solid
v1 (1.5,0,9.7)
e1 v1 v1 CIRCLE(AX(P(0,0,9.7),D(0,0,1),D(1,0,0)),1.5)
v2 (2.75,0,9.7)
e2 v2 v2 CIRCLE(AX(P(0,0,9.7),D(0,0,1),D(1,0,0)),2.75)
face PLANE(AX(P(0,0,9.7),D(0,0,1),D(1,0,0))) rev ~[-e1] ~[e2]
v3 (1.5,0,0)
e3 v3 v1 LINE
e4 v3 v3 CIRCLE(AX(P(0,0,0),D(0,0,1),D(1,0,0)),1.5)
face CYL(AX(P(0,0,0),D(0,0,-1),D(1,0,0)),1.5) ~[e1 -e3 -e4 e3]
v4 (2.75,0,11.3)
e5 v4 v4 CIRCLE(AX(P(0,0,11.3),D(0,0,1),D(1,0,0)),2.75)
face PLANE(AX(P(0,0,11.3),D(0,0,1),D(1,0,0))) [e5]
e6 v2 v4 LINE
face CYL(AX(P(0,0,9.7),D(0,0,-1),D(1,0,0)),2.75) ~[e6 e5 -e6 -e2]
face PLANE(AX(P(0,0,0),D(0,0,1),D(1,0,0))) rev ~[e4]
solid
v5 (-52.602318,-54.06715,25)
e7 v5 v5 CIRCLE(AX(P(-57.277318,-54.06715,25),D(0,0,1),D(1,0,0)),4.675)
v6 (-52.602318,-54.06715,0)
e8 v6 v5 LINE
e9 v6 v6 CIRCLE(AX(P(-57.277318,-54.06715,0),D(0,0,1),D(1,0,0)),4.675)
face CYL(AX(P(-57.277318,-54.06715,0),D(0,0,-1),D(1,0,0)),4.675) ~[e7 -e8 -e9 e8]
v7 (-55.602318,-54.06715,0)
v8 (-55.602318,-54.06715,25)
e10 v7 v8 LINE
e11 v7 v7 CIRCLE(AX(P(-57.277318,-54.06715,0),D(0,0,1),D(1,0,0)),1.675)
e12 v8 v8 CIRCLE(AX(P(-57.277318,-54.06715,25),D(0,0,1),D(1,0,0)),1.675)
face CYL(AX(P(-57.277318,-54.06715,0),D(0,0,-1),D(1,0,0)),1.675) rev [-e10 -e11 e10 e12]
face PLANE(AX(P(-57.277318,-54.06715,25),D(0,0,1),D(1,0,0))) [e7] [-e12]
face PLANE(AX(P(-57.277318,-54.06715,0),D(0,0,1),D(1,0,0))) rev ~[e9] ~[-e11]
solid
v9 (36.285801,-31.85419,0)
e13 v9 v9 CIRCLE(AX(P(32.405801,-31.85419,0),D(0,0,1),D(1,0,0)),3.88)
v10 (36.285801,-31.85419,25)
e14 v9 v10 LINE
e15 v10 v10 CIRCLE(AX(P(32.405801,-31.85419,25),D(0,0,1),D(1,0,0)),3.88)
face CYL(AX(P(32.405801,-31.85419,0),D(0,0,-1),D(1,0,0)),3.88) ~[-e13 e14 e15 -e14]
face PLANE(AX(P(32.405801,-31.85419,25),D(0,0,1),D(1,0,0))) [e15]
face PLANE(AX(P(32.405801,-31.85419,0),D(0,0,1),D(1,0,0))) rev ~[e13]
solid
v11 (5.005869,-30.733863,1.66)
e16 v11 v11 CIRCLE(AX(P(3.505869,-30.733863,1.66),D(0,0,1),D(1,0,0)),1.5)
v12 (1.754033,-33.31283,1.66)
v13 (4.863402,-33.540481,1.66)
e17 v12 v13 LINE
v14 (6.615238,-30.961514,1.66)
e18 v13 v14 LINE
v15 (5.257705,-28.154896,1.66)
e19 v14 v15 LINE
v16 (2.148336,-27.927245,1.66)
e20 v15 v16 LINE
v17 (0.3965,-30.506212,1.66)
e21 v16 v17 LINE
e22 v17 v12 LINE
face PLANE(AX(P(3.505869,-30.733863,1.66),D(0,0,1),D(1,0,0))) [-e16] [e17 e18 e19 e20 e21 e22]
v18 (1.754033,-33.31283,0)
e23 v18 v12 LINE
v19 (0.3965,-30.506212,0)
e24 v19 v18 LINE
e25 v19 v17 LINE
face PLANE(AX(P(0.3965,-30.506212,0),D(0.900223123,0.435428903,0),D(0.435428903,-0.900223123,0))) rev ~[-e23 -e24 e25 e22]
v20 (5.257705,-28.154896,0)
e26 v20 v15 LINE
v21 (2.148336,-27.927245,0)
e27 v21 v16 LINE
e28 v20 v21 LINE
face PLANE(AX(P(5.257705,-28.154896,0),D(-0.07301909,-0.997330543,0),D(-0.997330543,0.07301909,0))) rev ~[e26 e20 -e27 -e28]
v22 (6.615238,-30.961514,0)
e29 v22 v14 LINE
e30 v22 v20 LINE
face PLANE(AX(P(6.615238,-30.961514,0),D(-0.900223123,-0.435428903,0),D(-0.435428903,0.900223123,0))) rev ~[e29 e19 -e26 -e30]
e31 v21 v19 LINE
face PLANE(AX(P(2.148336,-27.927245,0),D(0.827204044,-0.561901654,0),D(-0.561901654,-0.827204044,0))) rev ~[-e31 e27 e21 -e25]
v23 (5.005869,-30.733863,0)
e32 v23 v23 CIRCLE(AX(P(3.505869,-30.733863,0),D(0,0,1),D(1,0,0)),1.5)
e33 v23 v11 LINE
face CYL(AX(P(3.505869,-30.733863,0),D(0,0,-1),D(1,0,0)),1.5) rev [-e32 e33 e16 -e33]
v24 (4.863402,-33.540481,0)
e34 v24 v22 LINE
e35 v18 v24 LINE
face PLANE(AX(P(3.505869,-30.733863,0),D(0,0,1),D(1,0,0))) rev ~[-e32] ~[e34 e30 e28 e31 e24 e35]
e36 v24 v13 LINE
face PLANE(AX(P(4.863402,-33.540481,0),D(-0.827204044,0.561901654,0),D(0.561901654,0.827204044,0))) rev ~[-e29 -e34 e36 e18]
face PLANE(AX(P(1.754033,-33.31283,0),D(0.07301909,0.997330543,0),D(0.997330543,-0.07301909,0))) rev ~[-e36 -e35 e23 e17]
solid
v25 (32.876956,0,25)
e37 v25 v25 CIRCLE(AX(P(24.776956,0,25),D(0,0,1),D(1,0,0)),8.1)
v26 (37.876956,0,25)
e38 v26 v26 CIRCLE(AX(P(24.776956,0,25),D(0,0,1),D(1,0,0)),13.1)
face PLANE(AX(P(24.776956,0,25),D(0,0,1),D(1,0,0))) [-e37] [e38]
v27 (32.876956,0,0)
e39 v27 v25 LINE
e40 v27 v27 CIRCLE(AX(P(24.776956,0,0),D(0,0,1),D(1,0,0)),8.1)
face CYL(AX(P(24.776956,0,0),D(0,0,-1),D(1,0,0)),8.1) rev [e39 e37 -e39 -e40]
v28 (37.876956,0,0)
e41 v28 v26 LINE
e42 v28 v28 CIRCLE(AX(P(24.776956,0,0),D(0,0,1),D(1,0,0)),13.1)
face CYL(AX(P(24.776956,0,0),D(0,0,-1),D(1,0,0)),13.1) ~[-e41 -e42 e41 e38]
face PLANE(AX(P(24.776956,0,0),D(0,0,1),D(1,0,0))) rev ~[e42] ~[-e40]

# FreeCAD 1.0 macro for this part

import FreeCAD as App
import Part
import Sketcher


def add_polygon(sketch, points):
    """Adds a closed chain of lines whose ends are joined by coincident constraints."""
    first, n = sketch.GeometryCount, len(points)
    for a, b in zip(points, points[1:] + points[:1]):
        sketch.addGeometry(Part.LineSegment(App.Vector(*a, 0), App.Vector(*b, 0)), False)
    for i in range(n):
        sketch.addConstraint(Sketcher.Constraint("Coincident", first + i, 2, first + (i + 1) % n, 1))

doc = App.newDocument("Part")
params = doc.addObject("Spreadsheet::Sheet", "Params")
for row, (alias, value) in enumerate([
    ("sketch1_diameter", "3 mm"),
    ("pad1_length", "9.7 mm"),
    ("sketch2_diameter", "5.5 mm"),
    ("pad2_length", "1.6 mm"),
    ("sketch3_diameter", "3 mm"),
    ("pad3_length", "1.66 mm"),
    ("sketch4_diameter", "26.2 mm"),
    ("sketch4_diameter2", "16.2 mm"),
    ("pad4_length", "25 mm"),
    ("sketch5_diameter", "7.76 mm"),
    ("pad5_length", "25 mm"),
    ("sketch6_diameter", "9.35 mm"),
    ("sketch6_diameter2", "3.35 mm"),
    ("pad6_length", "25 mm"),
], start=1):
    params.set(f"A{row}", alias)
    params.set(f"B{row}", "=" + value)
    params.setAlias(f"B{row}", alias)

body = doc.addObject("PartDesign::Body", "Body")

# Sketch on XY plane
sketch1 = body.newObject("Sketcher::SketchObject", "Sketch")
sketch1.AttachmentSupport = (doc.getObject("XY_Plane"), [""])
sketch1.MapMode = "FlatFace"
sketch1.addGeometry(Part.Circle(App.Vector(0, 0, 0), App.Vector(0, 0, 1), 1.5), False)
sketch1.addConstraint(Sketcher.Constraint("Coincident", 0, 3, -1, 1))
sketch1.addConstraint(Sketcher.Constraint("Diameter", 0, 3.0))
sketch1.setExpression("Constraints[1]", "Params.sketch1_diameter")
pad1 = body.newObject("PartDesign::Pad", "Pad")
pad1.Profile = sketch1
pad1.setExpression("Length", "Params.pad1_length")

# Sketch on XY plane
sketch2 = body.newObject("Sketcher::SketchObject", "Sketch001")
sketch2.AttachmentSupport = (doc.getObject("XY_Plane"), [""])
sketch2.MapMode = "FlatFace"
sketch2.AttachmentOffset = App.Placement(App.Vector(0, 0, 9.7), App.Rotation())
sketch2.addGeometry(Part.Circle(App.Vector(0, 0, 0), App.Vector(0, 0, 1), 2.8), False)
sketch2.addConstraint(Sketcher.Constraint("Coincident", 0, 3, -1, 1))
sketch2.addConstraint(Sketcher.Constraint("Diameter", 0, 5.5))
sketch2.setExpression("Constraints[1]", "Params.sketch2_diameter")
pad2 = body.newObject("PartDesign::Pad", "Pad001")
pad2.Profile = sketch2
pad2.setExpression("Length", "Params.pad2_length")
body2 = doc.addObject("PartDesign::Body", "Body001")

# Sketch on XY plane
sketch3 = body2.newObject("Sketcher::SketchObject", "Sketch002")
sketch3.AttachmentSupport = (doc.getObject("XY_Plane001"), [""])
sketch3.MapMode = "FlatFace"
add_polygon(sketch3, [(4.9, -33.5), (6.6, -31), (5.3, -28.2), (2.1, -27.9), (0.4, -30.5), (1.8, -33.3)])  # lines 0-5
sketch3.addGeometry(Part.Circle(App.Vector(3.5, -30.7, 0), App.Vector(0, 0, 1), 1.5), False)  # 6
sketch3.addConstraint(Sketcher.Constraint("Parallel", 0, 3))
sketch3.addConstraint(Sketcher.Constraint("Parallel", 1, 4))
sketch3.addConstraint(Sketcher.Constraint("Parallel", 2, 5))
sketch3.addConstraint(Sketcher.Constraint("Equal", 0, 1))
sketch3.addConstraint(Sketcher.Constraint("Equal", 1, 2))
sketch3.addConstraint(Sketcher.Constraint("Equal", 2, 3))
sketch3.addConstraint(Sketcher.Constraint("Diameter", 6, 3.0))
sketch3.addConstraint(Sketcher.Constraint("DistanceX", -1, 1, 3, 2, 0.3965))
sketch3.addConstraint(Sketcher.Constraint("DistanceX", -1, 1, 5, 2, 4.863402))
sketch3.addConstraint(Sketcher.Constraint("DistanceY", 0, 2, 3, 2, 0.455302))
sketch3.addConstraint(Sketcher.Constraint("Distance", 0, 3.117691))
sketch3.addConstraint(Sketcher.Constraint("DistanceX", -1, 1, 6, 3, 3.505869))
sketch3.addConstraint(Sketcher.Constraint("DistanceY", 4, 2, -1, 1, 33.31283))
sketch3.addConstraint(Sketcher.Constraint("DistanceY", 5, 2, -1, 1, 33.540481))
sketch3.addConstraint(Sketcher.Constraint("DistanceY", 0, 2, 6, 3, 0.227651))
sketch3.setExpression("Constraints[12]", "Params.sketch3_diameter")
pad3 = body2.newObject("PartDesign::Pad", "Pad002")
pad3.Profile = sketch3
pad3.setExpression("Length", "Params.pad3_length")
body3 = doc.addObject("PartDesign::Body", "Body002")

# Sketch on XY plane
sketch4 = body3.newObject("Sketcher::SketchObject", "Sketch003")
sketch4.AttachmentSupport = (doc.getObject("XY_Plane002"), [""])
sketch4.MapMode = "FlatFace"
sketch4.addGeometry(Part.Circle(App.Vector(25, 0, 0), App.Vector(0, 0, 1), 13), False)
sketch4.addGeometry(Part.Circle(App.Vector(25, 0, 0), App.Vector(0, 0, 1), 8), False)
sketch4.addConstraint(Sketcher.Constraint("Coincident", 1, 3, 0, 3))
sketch4.addConstraint(Sketcher.Constraint("PointOnObject", 0, 3, -1))
sketch4.addConstraint(Sketcher.Constraint("Diameter", 0, 26.2))
sketch4.addConstraint(Sketcher.Constraint("Diameter", 1, 16.2))
sketch4.addConstraint(Sketcher.Constraint("DistanceX", -1, 1, 0, 3, 24.776956))
sketch4.setExpression("Constraints[2]", "Params.sketch4_diameter")
sketch4.setExpression("Constraints[3]", "Params.sketch4_diameter2")
pad4 = body3.newObject("PartDesign::Pad", "Pad003")
pad4.Profile = sketch4
pad4.setExpression("Length", "Params.pad4_length")
body4 = doc.addObject("PartDesign::Body", "Body003")

# Sketch on XY plane
sketch5 = body4.newObject("Sketcher::SketchObject", "Sketch004")
sketch5.AttachmentSupport = (doc.getObject("XY_Plane003"), [""])
sketch5.MapMode = "FlatFace"
sketch5.addGeometry(Part.Circle(App.Vector(32.4, -31.9, 0), App.Vector(0, 0, 1), 3.9), False)
sketch5.addConstraint(Sketcher.Constraint("Diameter", 0, 7.76))
sketch5.addConstraint(Sketcher.Constraint("DistanceX", -1, 1, 0, 3, 32.405801))
sketch5.addConstraint(Sketcher.Constraint("DistanceY", 0, 3, -1, 1, 31.85419))
sketch5.setExpression("Constraints[0]", "Params.sketch5_diameter")
pad5 = body4.newObject("PartDesign::Pad", "Pad004")
pad5.Profile = sketch5
pad5.setExpression("Length", "Params.pad5_length")
body5 = doc.addObject("PartDesign::Body", "Body004")

# Sketch on XY plane
sketch6 = body5.newObject("Sketcher::SketchObject", "Sketch005")
sketch6.AttachmentSupport = (doc.getObject("XY_Plane004"), [""])
sketch6.MapMode = "FlatFace"
sketch6.addGeometry(Part.Circle(App.Vector(-57.3, -54.1, 0), App.Vector(0, 0, 1), 4.7), False)
sketch6.addGeometry(Part.Circle(App.Vector(-57.3, -54.1, 0), App.Vector(0, 0, 1), 1.7), False)
sketch6.addConstraint(Sketcher.Constraint("Coincident", 1, 3, 0, 3))
sketch6.addConstraint(Sketcher.Constraint("Diameter", 0, 9.35))
sketch6.addConstraint(Sketcher.Constraint("Diameter", 1, 3.35))
sketch6.addConstraint(Sketcher.Constraint("DistanceY", 0, 3, -1, 1, 54.06715))
sketch6.addConstraint(Sketcher.Constraint("DistanceX", 0, 3, -1, 1, 57.277318))
sketch6.setExpression("Constraints[1]", "Params.sketch6_diameter")
sketch6.setExpression("Constraints[2]", "Params.sketch6_diameter2")
pad6 = body5.newObject("PartDesign::Pad", "Pad005")
pad6.Profile = sketch6
pad6.setExpression("Length", "Params.pad6_length")

doc.recompute()
